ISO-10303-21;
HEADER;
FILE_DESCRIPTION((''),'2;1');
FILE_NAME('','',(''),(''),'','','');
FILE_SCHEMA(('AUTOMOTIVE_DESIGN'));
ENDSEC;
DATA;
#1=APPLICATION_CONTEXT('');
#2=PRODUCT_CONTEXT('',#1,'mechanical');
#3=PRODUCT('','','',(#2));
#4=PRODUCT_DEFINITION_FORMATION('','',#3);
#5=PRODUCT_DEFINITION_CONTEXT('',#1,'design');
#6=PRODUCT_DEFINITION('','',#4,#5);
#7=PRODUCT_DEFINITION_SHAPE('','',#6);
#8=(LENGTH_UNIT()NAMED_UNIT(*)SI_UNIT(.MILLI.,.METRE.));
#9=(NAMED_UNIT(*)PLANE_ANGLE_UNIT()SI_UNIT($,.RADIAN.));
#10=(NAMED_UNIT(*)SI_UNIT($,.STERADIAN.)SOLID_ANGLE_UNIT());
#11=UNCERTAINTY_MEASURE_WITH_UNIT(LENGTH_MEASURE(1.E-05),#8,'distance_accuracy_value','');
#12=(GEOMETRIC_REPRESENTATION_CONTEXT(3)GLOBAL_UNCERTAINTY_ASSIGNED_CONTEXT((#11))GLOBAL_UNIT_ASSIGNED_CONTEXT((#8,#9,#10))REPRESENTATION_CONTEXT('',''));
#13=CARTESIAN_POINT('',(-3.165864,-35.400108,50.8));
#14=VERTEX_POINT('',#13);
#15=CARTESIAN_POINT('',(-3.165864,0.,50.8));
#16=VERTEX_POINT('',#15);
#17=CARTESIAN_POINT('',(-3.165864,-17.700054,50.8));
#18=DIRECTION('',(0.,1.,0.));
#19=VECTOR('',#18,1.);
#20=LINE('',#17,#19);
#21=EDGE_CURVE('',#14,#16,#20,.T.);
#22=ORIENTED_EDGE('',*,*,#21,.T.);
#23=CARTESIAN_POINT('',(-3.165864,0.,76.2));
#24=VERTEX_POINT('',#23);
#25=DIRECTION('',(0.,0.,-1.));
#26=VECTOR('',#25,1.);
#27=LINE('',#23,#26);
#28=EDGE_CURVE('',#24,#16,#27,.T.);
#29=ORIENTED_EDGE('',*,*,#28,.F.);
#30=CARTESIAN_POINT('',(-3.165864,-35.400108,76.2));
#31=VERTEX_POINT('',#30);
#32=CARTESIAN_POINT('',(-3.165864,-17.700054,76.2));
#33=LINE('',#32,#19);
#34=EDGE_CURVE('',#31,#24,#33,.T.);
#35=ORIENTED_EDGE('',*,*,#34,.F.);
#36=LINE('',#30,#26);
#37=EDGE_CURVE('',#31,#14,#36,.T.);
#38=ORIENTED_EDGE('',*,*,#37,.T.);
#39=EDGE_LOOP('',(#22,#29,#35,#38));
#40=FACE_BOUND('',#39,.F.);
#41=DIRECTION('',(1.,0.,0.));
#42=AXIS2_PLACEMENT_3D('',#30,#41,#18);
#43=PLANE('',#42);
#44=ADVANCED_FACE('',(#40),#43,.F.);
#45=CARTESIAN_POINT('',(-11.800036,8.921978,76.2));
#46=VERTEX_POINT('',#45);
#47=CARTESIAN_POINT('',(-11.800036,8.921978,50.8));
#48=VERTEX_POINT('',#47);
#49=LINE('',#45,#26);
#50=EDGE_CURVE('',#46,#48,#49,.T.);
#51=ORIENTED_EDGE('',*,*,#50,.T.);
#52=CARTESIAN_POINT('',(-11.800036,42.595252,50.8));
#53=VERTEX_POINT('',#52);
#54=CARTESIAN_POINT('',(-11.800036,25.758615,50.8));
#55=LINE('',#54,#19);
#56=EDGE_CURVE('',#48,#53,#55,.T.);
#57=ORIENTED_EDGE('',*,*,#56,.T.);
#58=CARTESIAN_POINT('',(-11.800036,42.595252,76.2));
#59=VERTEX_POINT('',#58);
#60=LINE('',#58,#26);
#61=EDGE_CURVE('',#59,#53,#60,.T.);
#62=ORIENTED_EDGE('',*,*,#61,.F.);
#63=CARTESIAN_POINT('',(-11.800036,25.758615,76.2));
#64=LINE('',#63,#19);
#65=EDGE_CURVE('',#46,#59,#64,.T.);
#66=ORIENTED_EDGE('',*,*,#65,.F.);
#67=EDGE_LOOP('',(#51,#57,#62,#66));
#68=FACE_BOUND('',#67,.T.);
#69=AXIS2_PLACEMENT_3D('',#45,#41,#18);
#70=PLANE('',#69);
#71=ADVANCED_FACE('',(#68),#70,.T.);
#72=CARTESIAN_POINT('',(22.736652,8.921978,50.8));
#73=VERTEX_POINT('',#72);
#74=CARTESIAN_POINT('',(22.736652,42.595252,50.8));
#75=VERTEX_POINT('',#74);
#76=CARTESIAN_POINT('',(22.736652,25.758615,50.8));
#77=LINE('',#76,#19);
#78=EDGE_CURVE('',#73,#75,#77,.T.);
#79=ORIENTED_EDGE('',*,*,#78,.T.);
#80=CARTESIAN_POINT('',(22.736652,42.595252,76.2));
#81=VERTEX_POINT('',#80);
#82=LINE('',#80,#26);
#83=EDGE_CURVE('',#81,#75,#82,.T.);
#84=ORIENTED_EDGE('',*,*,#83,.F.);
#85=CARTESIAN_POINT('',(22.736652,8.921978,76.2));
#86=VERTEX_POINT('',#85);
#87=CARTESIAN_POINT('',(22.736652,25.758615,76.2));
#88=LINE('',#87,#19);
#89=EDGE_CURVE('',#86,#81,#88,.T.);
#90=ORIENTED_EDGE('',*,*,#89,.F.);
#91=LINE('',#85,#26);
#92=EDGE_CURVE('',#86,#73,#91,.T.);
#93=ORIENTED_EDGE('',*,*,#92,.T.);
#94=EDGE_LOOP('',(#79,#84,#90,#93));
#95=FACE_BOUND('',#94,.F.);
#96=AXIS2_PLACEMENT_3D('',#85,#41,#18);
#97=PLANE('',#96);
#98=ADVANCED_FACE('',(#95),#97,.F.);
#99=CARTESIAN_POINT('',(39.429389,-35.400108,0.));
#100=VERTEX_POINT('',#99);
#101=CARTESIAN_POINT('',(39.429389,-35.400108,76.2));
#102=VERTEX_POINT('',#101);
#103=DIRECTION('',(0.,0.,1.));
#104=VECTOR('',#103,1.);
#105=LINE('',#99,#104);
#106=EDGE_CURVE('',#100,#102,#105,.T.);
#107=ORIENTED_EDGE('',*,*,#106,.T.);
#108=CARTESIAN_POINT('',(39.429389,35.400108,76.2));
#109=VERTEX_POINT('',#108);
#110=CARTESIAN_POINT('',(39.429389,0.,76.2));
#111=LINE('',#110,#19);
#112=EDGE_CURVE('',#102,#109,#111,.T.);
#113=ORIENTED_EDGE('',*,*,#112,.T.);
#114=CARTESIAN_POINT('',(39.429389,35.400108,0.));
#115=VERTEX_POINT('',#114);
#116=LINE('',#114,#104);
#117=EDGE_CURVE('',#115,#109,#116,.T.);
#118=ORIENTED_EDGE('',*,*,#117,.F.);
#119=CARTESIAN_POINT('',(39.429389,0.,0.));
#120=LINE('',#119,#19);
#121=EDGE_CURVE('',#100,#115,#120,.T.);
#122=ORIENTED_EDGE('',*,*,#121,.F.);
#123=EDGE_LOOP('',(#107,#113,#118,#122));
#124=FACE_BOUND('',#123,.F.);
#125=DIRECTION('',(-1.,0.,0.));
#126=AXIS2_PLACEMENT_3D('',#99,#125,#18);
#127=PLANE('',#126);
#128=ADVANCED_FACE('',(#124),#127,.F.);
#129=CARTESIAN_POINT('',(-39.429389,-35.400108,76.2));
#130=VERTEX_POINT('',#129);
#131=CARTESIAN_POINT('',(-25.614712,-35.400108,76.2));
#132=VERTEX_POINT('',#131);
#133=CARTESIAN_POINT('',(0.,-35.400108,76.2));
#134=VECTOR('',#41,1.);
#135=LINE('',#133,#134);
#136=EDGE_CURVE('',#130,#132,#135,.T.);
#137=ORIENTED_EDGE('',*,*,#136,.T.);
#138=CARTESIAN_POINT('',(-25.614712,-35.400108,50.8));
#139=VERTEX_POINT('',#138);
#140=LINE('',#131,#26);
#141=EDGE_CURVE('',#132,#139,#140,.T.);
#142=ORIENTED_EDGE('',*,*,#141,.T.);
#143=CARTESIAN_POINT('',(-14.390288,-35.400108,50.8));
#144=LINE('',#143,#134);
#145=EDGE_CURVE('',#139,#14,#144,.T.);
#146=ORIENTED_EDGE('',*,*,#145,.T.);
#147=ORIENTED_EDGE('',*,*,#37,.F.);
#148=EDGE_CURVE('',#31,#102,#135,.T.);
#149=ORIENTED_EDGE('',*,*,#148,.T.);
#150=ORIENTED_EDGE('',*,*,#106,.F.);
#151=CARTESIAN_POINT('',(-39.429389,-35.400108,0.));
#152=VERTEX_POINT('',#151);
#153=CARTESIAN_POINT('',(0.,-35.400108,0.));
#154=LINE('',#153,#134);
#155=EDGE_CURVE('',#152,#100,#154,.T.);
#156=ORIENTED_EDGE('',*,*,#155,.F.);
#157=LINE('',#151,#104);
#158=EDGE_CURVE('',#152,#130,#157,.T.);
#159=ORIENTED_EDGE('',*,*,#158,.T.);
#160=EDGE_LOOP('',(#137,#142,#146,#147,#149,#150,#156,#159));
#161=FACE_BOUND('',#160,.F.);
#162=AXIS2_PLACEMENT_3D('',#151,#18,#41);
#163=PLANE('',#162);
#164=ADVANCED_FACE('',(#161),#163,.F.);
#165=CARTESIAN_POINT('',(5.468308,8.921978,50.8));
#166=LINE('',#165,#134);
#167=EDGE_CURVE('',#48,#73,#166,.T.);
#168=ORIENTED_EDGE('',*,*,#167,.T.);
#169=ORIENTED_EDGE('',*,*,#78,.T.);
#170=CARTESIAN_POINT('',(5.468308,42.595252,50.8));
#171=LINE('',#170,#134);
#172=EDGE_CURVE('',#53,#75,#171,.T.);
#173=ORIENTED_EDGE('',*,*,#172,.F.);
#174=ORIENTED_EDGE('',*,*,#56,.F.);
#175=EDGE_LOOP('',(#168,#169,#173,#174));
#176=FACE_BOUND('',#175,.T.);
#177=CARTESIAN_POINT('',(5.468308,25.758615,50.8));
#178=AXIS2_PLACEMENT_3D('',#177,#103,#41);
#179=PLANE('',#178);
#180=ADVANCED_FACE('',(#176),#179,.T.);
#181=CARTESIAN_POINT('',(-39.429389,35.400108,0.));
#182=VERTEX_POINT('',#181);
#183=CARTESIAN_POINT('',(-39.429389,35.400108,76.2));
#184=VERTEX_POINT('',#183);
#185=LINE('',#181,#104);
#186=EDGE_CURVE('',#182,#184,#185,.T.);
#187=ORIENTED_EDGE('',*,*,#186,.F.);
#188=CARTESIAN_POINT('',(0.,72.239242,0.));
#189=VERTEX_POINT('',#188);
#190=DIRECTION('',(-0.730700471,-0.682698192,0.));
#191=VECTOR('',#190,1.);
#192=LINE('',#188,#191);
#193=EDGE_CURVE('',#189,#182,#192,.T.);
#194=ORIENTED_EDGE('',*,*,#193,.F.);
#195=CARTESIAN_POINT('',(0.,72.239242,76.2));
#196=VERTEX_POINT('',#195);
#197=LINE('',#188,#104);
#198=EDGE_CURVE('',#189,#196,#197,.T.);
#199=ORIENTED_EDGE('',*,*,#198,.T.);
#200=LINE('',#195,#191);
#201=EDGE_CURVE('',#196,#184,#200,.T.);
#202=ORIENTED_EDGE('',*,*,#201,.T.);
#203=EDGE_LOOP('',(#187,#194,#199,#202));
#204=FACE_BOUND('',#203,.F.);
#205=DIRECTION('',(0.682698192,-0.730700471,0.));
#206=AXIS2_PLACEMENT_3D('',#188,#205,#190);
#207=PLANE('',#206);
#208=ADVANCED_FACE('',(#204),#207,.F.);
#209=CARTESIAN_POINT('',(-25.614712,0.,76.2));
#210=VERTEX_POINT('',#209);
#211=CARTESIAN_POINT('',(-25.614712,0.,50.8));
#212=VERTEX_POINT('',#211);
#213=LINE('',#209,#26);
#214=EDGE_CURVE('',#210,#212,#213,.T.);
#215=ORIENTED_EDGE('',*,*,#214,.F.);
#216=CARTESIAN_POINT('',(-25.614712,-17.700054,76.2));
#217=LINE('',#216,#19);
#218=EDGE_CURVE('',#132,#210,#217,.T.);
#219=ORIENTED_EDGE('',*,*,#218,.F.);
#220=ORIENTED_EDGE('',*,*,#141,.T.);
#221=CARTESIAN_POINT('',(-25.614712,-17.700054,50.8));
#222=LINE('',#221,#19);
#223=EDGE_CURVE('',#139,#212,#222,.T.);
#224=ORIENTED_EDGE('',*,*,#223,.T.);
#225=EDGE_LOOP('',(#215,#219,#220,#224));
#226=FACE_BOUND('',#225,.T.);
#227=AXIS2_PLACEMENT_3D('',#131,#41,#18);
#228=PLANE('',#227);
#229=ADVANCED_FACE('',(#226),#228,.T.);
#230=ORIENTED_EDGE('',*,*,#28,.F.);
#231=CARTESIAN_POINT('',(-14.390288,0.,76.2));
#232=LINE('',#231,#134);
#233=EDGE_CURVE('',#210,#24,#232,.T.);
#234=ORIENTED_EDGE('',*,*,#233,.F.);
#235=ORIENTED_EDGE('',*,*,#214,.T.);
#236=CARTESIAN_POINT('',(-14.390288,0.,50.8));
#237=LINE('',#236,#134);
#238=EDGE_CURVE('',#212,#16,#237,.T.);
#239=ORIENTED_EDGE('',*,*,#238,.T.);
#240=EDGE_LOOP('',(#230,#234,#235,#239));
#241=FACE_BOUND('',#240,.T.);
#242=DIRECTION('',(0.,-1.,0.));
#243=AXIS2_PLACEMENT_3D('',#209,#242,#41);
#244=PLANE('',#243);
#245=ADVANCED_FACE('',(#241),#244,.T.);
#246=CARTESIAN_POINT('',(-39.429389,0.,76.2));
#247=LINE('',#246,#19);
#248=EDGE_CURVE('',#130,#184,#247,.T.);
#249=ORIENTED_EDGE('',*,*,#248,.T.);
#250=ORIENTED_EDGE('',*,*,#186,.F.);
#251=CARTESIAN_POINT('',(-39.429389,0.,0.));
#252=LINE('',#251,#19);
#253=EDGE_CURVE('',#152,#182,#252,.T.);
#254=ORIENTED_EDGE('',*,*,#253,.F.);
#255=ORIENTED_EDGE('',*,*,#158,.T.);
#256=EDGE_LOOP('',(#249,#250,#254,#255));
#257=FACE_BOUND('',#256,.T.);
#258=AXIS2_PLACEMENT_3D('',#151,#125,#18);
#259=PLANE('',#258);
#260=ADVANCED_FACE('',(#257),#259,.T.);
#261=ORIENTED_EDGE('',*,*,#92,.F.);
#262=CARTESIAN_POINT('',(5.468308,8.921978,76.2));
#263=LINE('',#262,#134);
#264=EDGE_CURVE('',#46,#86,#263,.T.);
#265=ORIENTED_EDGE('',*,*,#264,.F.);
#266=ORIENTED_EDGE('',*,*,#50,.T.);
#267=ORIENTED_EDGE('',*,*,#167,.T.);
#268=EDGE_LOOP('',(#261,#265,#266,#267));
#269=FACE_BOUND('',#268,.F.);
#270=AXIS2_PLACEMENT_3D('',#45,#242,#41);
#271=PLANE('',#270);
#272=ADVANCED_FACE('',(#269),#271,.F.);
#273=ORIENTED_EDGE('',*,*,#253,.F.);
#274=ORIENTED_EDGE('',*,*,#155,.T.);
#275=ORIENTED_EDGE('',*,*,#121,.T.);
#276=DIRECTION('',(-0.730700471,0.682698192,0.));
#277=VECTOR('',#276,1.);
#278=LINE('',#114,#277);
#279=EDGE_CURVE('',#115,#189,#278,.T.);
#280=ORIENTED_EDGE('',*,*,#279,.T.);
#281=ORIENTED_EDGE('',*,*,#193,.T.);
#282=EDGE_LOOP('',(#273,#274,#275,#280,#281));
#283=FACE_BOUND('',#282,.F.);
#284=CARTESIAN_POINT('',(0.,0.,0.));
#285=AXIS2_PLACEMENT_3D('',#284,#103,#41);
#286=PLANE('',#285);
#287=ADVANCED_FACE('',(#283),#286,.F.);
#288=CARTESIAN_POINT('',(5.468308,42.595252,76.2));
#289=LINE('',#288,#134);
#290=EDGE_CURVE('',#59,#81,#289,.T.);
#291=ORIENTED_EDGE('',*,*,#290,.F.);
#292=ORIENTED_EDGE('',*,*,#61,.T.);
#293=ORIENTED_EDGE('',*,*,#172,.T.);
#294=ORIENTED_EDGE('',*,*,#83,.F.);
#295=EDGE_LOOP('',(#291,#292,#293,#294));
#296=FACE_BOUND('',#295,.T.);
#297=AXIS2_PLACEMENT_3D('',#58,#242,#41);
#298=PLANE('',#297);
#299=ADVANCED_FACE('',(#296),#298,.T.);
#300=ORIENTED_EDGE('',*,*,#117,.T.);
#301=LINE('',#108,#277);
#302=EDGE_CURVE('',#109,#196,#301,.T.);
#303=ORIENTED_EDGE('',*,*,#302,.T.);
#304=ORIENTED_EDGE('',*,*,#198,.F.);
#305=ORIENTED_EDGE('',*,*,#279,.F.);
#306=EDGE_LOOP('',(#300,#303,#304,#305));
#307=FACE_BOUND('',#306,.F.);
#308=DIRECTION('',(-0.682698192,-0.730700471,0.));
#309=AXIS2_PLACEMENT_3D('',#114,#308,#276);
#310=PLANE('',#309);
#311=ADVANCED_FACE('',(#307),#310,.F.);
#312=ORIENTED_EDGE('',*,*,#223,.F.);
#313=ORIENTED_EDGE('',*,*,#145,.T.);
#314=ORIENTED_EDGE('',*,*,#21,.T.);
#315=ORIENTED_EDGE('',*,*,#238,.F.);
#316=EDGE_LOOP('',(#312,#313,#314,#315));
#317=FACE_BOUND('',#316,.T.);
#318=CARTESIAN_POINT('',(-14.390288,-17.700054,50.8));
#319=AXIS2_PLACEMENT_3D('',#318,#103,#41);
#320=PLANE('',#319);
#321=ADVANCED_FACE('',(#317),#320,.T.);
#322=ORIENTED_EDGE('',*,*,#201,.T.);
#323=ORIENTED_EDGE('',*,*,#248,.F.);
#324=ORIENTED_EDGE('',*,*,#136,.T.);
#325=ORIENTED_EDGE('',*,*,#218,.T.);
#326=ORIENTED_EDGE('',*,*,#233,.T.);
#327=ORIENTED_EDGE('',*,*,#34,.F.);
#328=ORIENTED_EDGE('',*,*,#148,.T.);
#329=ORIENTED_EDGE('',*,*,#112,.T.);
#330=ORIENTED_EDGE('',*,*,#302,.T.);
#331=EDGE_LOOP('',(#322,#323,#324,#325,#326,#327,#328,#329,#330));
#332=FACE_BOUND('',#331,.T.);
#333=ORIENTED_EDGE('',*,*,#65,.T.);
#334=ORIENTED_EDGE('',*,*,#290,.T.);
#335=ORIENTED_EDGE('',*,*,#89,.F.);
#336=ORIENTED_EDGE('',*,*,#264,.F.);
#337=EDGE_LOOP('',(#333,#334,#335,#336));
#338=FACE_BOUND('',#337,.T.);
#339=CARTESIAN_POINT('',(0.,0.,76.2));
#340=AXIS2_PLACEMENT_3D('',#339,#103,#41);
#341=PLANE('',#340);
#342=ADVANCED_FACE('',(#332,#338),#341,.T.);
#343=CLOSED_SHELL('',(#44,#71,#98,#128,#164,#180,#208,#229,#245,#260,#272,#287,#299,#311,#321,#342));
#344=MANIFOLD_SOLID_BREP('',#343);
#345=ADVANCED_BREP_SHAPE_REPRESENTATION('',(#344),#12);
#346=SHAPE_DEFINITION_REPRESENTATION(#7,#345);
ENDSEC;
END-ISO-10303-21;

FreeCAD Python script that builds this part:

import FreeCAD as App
import Part
import Sketcher
Q = App.Units.Quantity

doc = App.newDocument("Part")
params = doc.addObject("Spreadsheet::Sheet", "Params")
for row, (alias, value) in enumerate([
    ("pad1_length", "3 in"),
    ("pocket1_length", "1 in"),
    ("pocket2_length", "1 in"),
], start=1):
    params.set(f"A{row}", alias)
    params.set(f"B{row}", "=" + value)
    params.setAlias(f"B{row}", alias)

body = doc.addObject("PartDesign::Body", "Body")

# Sketch on XY plane
sketch1 = doc.addObject("Sketcher::SketchObject", "Sketch")
body.addObject(sketch1)
sketch1.AttachmentSupport = (doc.XY_Plane, [""])
sketch1.MapMode = "FlatFace"
sketch1.addGeometry([
    Part.LineSegment(App.Vector(-39, 35, 0), App.Vector(-39, -35, 0)),  # 0
    Part.LineSegment(App.Vector(-39, -35, 0), App.Vector(39, -35, 0)),  # 1
    Part.LineSegment(App.Vector(39, -35, 0), App.Vector(39, 35, 0)),  # 2
    Part.LineSegment(App.Vector(39, 35, 0), App.Vector(0, 72, 0)),  # 3
    Part.LineSegment(App.Vector(0, 72, 0), App.Vector(-39, 35, 0)),  # 4
], False)
sketch1.addConstraint([
    Sketcher.Constraint("Coincident", 0, 2, 1, 1),
    Sketcher.Constraint("Coincident", 1, 2, 2, 1),
    Sketcher.Constraint("Coincident", 2, 2, 3, 1),
    Sketcher.Constraint("Coincident", 3, 2, 4, 1),
    Sketcher.Constraint("Coincident", 4, 2, 0, 1),
    Sketcher.Constraint("Vertical", 0),
    Sketcher.Constraint("Horizontal", 1),
    Sketcher.Constraint("Vertical", 2),
    Sketcher.Constraint("Symmetric", 0, 2, 2, 2, -1, 1),
    Sketcher.Constraint("PointOnObject", 3, 2, -2),
    Sketcher.Constraint("Horizontal", 2, 2, 4, 2),
    Sketcher.Constraint("DistanceX", 1, 1, 1, 2, Q("78.858778 mm")),
    Sketcher.Constraint("DistanceY", 0, 2, 0, 1, Q("70.800216 mm")),
    Sketcher.Constraint("DistanceY", 0, 2, 3, 2, Q("107.63935 mm")),
])
pad1 = doc.addObject("PartDesign::Pad", "Pad")
body.addObject(pad1)
pad1.Profile = sketch1
pad1.setExpression("Length", "Params.pad1_length")

# Sketch on XY plane
sketch2 = doc.addObject("Sketcher::SketchObject", "Sketch001")
body.addObject(sketch2)
sketch2.AttachmentSupport = (doc.XY_Plane, [""])
sketch2.MapMode = "FlatFace"
sketch2.AttachmentOffset = App.Placement(App.Vector(0, 0, 3 * 25.4), App.Rotation())
sketch2.addGeometry([
    Part.LineSegment(App.Vector(-26, 0, 0), App.Vector(-26, -35, 0)),
    Part.LineSegment(App.Vector(-26, -35, 0), App.Vector(-3, -35, 0)),
    Part.LineSegment(App.Vector(-3, -35, 0), App.Vector(-3, 0, 0)),
    Part.LineSegment(App.Vector(-3, 0, 0), App.Vector(-26, 0, 0)),
], False)
sketch2.addConstraint([
    Sketcher.Constraint("Coincident", 0, 2, 1, 1),
    Sketcher.Constraint("Coincident", 1, 2, 2, 1),
    Sketcher.Constraint("Coincident", 2, 2, 3, 1),
    Sketcher.Constraint("Coincident", 3, 2, 0, 1),
    Sketcher.Constraint("Vertical", 0),
    Sketcher.Constraint("Horizontal", 1),
    Sketcher.Constraint("Vertical", 2),
    Sketcher.Constraint("Horizontal", 3),
    Sketcher.Constraint("PointOnObject", 2, 2, -1),
    Sketcher.Constraint("DistanceX", 1, 1, 1, 2, Q("22.448848 mm")),
    Sketcher.Constraint("DistanceY", 0, 2, 0, 1, Q("35.400108 mm")),
    Sketcher.Constraint("DistanceX", 0, 2, -1, 1, Q("25.614712 mm")),
])
pocket1 = doc.addObject("PartDesign::Pocket", "Pocket")
body.addObject(pocket1)
pocket1.Profile = sketch2
pocket1.setExpression("Length", "Params.pocket1_length")

# Sketch on XY plane
sketch3 = doc.addObject("Sketcher::SketchObject", "Sketch002")
body.addObject(sketch3)
sketch3.AttachmentSupport = (doc.XY_Plane, [""])
sketch3.MapMode = "FlatFace"
sketch3.AttachmentOffset = App.Placement(App.Vector(0, 0, 3 * 25.4), App.Rotation())
sketch3.addGeometry([
    Part.LineSegment(App.Vector(-12, 43, 0), App.Vector(-12, 9, 0)),
    Part.LineSegment(App.Vector(-12, 9, 0), App.Vector(23, 9, 0)),
    Part.LineSegment(App.Vector(23, 9, 0), App.Vector(23, 43, 0)),
    Part.LineSegment(App.Vector(23, 43, 0), App.Vector(-12, 43, 0)),
], False)
sketch3.addConstraint([
    Sketcher.Constraint("Coincident", 0, 2, 1, 1),
    Sketcher.Constraint("Coincident", 1, 2, 2, 1),
    Sketcher.Constraint("Coincident", 2, 2, 3, 1),
    Sketcher.Constraint("Coincident", 3, 2, 0, 1),
    Sketcher.Constraint("Vertical", 0),
    Sketcher.Constraint("Horizontal", 1),
    Sketcher.Constraint("Vertical", 2),
    Sketcher.Constraint("Horizontal", 3),
    Sketcher.Constraint("DistanceX", 1, 1, 1, 2, Q("34.536688 mm")),
    Sketcher.Constraint("DistanceY", 0, 2, 0, 1, Q("33.673274 mm")),
    Sketcher.Constraint("DistanceX", -1, 1, 1, 2, Q("22.736652 mm")),
    Sketcher.Constraint("DistanceY", -1, 1, 0, 2, Q("8.921978 mm")),
])
pocket2 = doc.addObject("PartDesign::Pocket", "Pocket001")
body.addObject(pocket2)
pocket2.Profile = sketch3
pocket2.setExpression("Length", "Params.pocket2_length")

doc.recompute()
